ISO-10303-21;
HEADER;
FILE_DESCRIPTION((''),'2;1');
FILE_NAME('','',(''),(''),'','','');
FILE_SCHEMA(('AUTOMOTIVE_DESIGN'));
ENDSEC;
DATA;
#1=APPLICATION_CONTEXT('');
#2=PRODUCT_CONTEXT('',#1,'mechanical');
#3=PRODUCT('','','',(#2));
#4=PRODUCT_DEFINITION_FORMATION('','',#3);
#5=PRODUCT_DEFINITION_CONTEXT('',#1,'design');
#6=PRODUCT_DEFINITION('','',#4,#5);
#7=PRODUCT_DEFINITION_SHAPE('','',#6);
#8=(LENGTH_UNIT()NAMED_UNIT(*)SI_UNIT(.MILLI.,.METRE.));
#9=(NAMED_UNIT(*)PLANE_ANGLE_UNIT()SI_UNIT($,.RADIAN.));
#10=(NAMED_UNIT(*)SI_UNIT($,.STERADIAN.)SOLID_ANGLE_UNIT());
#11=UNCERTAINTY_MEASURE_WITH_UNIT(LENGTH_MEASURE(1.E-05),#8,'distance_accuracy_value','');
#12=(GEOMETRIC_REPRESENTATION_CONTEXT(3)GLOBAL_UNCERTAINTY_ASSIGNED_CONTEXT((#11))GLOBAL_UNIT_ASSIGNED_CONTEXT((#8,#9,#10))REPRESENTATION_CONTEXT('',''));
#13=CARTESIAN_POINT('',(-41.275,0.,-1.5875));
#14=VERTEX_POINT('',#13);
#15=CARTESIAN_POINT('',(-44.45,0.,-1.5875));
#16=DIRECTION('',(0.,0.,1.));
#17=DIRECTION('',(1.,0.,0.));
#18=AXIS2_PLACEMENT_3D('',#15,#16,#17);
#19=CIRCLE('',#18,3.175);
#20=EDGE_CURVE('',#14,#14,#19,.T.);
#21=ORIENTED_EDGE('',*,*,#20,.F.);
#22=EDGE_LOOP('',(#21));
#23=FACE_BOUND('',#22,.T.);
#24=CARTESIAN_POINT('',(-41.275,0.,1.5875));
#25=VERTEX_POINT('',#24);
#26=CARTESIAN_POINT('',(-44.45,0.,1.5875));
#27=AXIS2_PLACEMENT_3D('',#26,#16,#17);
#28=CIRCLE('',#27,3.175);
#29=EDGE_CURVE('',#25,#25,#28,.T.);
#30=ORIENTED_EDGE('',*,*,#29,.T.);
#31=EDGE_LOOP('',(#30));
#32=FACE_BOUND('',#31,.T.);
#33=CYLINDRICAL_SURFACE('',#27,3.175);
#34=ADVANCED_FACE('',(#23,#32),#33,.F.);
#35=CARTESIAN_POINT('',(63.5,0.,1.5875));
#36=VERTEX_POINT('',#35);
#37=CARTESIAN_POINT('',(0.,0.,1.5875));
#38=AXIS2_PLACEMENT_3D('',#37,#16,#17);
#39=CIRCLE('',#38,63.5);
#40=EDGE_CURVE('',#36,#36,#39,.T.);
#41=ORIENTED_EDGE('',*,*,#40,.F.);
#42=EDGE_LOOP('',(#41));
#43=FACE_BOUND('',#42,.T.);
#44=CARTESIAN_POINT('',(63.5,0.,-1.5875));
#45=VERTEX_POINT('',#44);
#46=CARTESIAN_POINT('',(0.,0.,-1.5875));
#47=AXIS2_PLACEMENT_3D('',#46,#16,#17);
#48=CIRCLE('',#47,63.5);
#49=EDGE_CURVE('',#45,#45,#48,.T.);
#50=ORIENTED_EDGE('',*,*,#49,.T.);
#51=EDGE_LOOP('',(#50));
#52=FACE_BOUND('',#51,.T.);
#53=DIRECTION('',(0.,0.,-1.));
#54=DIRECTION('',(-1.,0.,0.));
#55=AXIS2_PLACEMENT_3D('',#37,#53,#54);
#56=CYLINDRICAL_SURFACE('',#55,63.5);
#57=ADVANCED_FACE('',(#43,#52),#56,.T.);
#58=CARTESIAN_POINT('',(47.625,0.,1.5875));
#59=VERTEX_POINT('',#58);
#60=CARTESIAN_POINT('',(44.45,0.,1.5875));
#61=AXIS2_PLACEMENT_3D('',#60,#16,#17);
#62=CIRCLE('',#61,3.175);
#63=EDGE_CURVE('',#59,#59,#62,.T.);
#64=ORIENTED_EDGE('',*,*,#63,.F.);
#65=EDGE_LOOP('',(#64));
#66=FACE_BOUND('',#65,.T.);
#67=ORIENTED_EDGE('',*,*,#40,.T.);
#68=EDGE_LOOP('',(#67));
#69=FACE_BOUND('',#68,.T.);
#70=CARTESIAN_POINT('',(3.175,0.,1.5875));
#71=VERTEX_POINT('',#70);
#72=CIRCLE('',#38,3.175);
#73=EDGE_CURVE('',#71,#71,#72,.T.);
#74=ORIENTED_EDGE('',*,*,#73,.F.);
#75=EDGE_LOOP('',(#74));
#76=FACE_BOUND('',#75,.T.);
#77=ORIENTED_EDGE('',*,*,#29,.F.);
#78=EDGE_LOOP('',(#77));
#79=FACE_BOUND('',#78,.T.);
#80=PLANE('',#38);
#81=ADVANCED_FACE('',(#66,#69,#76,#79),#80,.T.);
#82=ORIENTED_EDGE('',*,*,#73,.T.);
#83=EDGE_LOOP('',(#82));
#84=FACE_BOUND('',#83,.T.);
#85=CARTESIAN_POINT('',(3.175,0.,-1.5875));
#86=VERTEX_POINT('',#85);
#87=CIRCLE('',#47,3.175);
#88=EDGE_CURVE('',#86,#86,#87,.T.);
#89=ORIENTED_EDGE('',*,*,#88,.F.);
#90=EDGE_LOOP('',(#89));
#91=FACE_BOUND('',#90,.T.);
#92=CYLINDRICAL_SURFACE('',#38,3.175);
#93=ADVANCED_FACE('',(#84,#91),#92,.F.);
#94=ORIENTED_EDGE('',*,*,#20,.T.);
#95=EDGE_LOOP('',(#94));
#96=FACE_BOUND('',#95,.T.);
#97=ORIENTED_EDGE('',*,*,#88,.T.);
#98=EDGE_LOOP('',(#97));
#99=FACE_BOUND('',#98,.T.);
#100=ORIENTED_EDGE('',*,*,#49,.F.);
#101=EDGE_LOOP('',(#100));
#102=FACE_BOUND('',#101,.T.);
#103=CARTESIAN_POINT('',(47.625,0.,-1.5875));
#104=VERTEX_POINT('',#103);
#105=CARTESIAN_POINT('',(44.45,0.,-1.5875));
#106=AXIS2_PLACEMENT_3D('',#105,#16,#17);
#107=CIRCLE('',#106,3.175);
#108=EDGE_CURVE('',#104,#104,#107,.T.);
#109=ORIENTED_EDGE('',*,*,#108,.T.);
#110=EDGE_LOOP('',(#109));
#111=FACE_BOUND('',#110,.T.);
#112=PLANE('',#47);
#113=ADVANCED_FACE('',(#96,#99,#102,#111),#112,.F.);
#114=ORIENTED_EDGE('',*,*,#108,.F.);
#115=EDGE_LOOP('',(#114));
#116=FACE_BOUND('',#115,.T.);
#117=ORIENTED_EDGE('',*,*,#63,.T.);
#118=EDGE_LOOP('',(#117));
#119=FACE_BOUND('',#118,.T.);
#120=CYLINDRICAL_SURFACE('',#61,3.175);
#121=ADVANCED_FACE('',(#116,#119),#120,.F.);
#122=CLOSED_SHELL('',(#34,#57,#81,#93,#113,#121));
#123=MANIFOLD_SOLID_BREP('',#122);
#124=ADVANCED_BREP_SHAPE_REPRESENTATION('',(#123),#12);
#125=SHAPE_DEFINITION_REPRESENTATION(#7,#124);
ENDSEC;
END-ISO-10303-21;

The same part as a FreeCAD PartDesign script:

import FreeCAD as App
import Part
import Sketcher

V = App.Vector
Q = App.Units.Quantity

doc = App.newDocument("Part")
params = doc.addObject("Spreadsheet::Sheet", "Params")
for row, (alias, value) in enumerate([
    ("sketch1_diameter", "5 in"),
    ("pad1_length", "0.125 in"),
    ("sketch2_diameter", "0.25 in"),
    ("hole_diameter", "0.25 in"),
], start=1):
    params.set(f"A{row}", alias)
    params.set(f"B{row}", "=" + value)
    params.setAlias(f"B{row}", alias)

body = doc.addObject("PartDesign::Body", "Body")

# Sketch on XY plane
sketch1 = body.newObject("Sketcher::SketchObject", "Sketch")
sketch1.AttachmentSupport = (doc.getObject("XY_Plane"), [""])
sketch1.MapMode = "FlatFace"
sketch1.addGeometry(Part.Circle(V(0, 0, 0), V(0, 0, 1), 64), False)
sketch1.addConstraint([
    Sketcher.Constraint("Coincident", 0, 3, -1, 1),
    Sketcher.Constraint("Diameter", 0, Q("5 in")),
])
sketch1.setExpression("Constraints[1]", "Params.sketch1_diameter")
pad1 = body.newObject("PartDesign::Pad", "Pad")
pad1.Profile = sketch1
pad1.setExpression("Length", "Params.pad1_length")
pad1.Midplane = True

# Sketch on XY plane
sketch2 = body.newObject("Sketcher::SketchObject", "Sketch001")
sketch2.AttachmentSupport = (doc.getObject("XY_Plane"), [""])
sketch2.MapMode = "FlatFace"
sketch2.AttachmentOffset = App.Placement(V(0, 0, 0.0625 * 25.4), App.Rotation())
sketch2.addGeometry([
    Part.Circle(V(-44.5, 0, 0), V(0, 0, 1), 3.2),
    Part.Circle(V(0, 0, 0), V(0, 0, 1), 3.2),
    Part.Circle(V(44.5, 0, 0), V(0, 0, 1), 3.2),
], False)
sketch2.addConstraint([
    Sketcher.Constraint("Coincident", 1, 3, -1, 1),
    Sketcher.Constraint("Equal", 0, 1),
    Sketcher.Constraint("Equal", 1, 2),
    Sketcher.Constraint("Symmetric", 0, 3, 2, 3, -1, 1),
    Sketcher.Constraint("PointOnObject", 0, 3, -1),
    Sketcher.Constraint("Diameter", 0, Q("0.25 in")),
    Sketcher.Constraint("DistanceX", 0, 3, 2, 3, Q("3.5 in")),
])
sketch2.setExpression("Constraints[5]", "Params.sketch2_diameter")
doc.recompute()
hole = body.newObject("PartDesign::Hole", "Hole")
hole.Profile = sketch2
hole.ThreadType = "None"
hole.setExpression("Diameter", "Params.hole_diameter")
hole.DepthType = "ThroughAll"

doc.recompute()
